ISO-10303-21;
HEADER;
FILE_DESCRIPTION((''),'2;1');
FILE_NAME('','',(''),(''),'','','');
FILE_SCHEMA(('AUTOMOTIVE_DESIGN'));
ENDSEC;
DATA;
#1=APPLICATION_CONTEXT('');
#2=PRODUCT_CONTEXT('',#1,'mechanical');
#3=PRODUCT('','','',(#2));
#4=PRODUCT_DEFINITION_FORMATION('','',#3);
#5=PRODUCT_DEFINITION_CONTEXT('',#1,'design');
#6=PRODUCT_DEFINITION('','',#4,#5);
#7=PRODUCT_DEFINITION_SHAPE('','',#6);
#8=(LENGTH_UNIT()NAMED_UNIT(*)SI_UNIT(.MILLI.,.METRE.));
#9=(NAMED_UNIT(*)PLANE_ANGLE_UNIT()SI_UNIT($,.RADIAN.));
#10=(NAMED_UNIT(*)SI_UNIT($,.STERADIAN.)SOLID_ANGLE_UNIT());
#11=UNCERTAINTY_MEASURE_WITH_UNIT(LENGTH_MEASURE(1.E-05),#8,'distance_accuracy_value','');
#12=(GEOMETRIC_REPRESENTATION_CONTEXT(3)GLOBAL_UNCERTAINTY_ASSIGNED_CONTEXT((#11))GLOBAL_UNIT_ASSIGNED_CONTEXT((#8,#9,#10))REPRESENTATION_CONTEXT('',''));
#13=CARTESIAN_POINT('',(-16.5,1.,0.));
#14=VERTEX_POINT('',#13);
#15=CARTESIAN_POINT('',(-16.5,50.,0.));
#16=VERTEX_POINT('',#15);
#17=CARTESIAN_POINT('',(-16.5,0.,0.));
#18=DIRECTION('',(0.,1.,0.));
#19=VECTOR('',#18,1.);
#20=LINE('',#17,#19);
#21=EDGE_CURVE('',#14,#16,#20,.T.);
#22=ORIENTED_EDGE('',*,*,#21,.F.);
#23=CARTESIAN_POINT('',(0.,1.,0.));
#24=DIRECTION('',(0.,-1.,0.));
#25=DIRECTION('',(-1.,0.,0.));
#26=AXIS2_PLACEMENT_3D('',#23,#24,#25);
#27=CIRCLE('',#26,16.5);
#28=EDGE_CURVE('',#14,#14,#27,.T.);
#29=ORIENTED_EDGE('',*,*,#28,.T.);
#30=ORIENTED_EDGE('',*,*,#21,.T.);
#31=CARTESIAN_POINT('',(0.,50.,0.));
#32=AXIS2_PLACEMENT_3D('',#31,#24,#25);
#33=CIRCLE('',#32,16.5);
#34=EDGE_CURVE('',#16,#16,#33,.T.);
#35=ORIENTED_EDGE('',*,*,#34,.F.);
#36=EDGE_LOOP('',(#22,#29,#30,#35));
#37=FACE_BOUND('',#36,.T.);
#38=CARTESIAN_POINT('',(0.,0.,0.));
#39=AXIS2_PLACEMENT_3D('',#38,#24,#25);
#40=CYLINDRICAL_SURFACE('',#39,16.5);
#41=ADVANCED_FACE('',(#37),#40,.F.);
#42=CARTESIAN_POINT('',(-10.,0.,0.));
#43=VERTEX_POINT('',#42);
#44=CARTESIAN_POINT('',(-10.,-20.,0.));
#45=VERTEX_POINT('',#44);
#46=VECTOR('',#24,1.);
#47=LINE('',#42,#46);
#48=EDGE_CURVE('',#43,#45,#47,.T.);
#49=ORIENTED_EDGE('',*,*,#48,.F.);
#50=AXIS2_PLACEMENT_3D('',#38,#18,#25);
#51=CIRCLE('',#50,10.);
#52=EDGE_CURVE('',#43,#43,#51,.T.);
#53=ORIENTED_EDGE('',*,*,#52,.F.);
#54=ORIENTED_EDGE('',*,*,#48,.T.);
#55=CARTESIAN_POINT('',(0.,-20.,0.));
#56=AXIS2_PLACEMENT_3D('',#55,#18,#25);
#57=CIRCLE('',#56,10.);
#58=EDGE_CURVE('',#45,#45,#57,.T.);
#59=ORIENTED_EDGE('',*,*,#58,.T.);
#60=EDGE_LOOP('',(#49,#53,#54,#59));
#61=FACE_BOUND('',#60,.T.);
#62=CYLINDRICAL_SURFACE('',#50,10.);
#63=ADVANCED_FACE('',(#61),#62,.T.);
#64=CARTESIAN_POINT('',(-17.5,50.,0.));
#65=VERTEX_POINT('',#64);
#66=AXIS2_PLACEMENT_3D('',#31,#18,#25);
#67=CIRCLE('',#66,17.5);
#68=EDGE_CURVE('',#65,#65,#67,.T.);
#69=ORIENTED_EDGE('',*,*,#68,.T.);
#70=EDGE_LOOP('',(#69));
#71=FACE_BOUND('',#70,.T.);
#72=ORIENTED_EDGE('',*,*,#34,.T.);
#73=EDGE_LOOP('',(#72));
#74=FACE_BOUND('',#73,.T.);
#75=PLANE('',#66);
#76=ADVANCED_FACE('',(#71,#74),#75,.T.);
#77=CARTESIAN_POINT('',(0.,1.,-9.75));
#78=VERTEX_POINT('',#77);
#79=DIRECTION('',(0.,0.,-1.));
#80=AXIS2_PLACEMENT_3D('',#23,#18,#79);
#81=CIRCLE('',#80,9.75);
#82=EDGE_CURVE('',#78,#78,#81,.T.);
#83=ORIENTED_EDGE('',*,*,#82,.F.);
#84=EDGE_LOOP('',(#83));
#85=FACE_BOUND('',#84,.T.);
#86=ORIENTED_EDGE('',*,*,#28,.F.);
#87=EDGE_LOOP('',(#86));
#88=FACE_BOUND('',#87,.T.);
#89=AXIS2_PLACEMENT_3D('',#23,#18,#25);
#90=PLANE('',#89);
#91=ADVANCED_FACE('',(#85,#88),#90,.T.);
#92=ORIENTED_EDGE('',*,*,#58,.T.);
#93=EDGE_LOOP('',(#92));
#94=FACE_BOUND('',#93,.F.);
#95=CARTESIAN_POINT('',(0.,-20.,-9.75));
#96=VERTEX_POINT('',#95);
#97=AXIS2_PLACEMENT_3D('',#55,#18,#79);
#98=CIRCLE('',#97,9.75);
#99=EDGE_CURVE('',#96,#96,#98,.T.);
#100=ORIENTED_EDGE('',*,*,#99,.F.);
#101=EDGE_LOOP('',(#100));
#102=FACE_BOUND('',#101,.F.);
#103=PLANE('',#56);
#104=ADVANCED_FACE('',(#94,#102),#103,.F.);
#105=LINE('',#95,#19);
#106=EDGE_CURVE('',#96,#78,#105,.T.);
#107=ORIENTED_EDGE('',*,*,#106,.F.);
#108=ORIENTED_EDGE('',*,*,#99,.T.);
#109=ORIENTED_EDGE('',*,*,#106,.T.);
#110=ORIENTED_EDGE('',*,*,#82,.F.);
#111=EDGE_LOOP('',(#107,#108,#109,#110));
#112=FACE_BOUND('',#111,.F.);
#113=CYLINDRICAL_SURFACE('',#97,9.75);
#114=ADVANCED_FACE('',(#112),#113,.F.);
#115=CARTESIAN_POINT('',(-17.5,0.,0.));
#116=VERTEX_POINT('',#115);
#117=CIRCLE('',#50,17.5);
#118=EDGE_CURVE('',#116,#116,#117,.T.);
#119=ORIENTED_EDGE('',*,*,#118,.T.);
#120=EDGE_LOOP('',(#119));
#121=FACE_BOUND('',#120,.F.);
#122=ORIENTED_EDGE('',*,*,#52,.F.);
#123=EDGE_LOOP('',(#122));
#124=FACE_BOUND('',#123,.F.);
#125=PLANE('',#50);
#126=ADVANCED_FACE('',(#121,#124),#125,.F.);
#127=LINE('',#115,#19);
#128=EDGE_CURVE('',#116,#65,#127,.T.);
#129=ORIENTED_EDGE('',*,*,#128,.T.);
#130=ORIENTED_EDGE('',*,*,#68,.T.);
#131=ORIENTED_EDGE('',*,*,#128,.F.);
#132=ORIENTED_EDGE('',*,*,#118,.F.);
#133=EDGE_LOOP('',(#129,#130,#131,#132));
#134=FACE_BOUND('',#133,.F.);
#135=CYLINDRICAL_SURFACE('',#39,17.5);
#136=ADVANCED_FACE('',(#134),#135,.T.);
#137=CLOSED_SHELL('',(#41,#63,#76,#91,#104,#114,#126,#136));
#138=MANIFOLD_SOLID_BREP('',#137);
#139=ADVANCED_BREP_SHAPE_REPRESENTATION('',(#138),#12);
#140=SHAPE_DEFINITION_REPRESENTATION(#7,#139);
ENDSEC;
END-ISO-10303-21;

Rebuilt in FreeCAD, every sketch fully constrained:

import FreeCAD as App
import Part
import Sketcher
from FreeCAD import Vector
Q = App.Units.Quantity


def faces_at(feature, points):
    """Names of the faces that lie closest to the given points."""
    faces = feature.Shape.Faces
    near = lambda p: min(range(len(faces)), key=lambda i: faces[i].distToShape(Part.Vertex(*p))[0])
    return sorted({f"Face{near(p) + 1}" for p in points})

doc = App.newDocument("Part")
params = doc.addObject("Spreadsheet::Sheet", "Params")
for row, (alias, value) in enumerate([
    ("sketch1_diameter", "35 mm"),
    ("pad1_length", "50 mm"),
    ("sketch2_diameter", "20 mm"),
    ("pad2_length", "20 mm"),
    ("thickness_wall", "1 mm"),
    ("sketch3_diameter", "19.5 mm"),
    ("hole_diameter", "19.5 mm"),
    ("hole_depth", "50 mm"),
], start=1):
    params.set(f"A{row}", alias)
    params.set(f"B{row}", "=" + value)
    params.setAlias(f"B{row}", alias)

body = doc.addObject("PartDesign::Body", "Body")

# Sketch on XZ plane
sketch1 = body.newObject("Sketcher::SketchObject", "Sketch")
sketch1.AttachmentSupport = (doc.getObject("XZ_Plane"), [""])
sketch1.MapMode = "FlatFace"
sketch1.addGeometry(Part.Circle(Vector(0, 0, 0), Vector(0, 0, 1), 18), False)
sketch1.addConstraint([
    Sketcher.Constraint("Coincident", 0, 3, -1, 1),
    Sketcher.Constraint("Diameter", 0, Q("35 mm")),
])
sketch1.setExpression("Constraints[1]", "Params.sketch1_diameter")
pad1 = body.newObject("PartDesign::Pad", "Pad")
pad1.Profile = sketch1
pad1.setExpression("Length", "Params.pad1_length")
pad1.Reversed = True

# Sketch on XZ plane
sketch2 = body.newObject("Sketcher::SketchObject", "Sketch001")
sketch2.AttachmentSupport = (doc.getObject("XZ_Plane"), [""])
sketch2.MapMode = "FlatFace"
sketch2.addGeometry(Part.Circle(Vector(0, 0, 0), Vector(0, 0, 1), 10), False)
sketch2.addConstraint([
    Sketcher.Constraint("Coincident", 0, 3, -1, 1),
    Sketcher.Constraint("Diameter", 0, Q("20 mm")),
])
sketch2.setExpression("Constraints[1]", "Params.sketch2_diameter")
pad2 = body.newObject("PartDesign::Pad", "Pad001")
pad2.Profile = sketch2
pad2.setExpression("Length", "Params.pad2_length")
doc.recompute()

thickness = body.newObject("PartDesign::Thickness", "Thickness")
thickness.Base = (pad2, faces_at(pad2, [(-4.366, 50, -1.076)]))
thickness.setExpression("Value", "Params.thickness_wall")
thickness.Reversed = True
thickness.Join = "Intersection"

# Sketch on XZ plane
sketch3 = body.newObject("Sketcher::SketchObject", "Sketch002")
sketch3.AttachmentSupport = (doc.getObject("XZ_Plane"), [""])
sketch3.MapMode = "FlatFace"
sketch3.AttachmentOffset = App.Placement(Vector(0, 0, 20), App.Rotation())
sketch3.addGeometry(Part.Circle(Vector(0, 0, 0), Vector(0, 0, 1), 10), False)
sketch3.addConstraint([
    Sketcher.Constraint("Coincident", 0, 3, -1, 1),
    Sketcher.Constraint("Diameter", 0, Q("19.5 mm")),
])
sketch3.setExpression("Constraints[1]", "Params.sketch3_diameter")
doc.recompute()
hole = body.newObject("PartDesign::Hole", "Hole")
hole.Profile = sketch3
hole.ThreadType = "None"
hole.setExpression("Diameter", "Params.hole_diameter")
hole.DepthType = "Dimension"
hole.setExpression("Depth", "Params.hole_depth")
hole.DrillPoint = "Flat"

doc.recompute()
